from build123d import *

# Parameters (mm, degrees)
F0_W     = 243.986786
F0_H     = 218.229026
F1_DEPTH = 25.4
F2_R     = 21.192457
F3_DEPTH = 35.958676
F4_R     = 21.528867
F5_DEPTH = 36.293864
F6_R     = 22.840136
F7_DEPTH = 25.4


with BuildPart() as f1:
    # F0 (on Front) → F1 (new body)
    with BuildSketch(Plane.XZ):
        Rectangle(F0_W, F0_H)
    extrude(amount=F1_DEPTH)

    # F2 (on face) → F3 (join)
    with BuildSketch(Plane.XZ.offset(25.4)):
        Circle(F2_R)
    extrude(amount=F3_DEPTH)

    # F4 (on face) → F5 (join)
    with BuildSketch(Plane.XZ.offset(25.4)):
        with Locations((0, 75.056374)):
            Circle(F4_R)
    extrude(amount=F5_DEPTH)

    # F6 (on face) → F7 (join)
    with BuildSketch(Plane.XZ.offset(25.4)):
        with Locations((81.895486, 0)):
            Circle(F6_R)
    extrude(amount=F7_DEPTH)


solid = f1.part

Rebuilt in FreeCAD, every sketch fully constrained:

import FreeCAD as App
import Part
import Sketcher
Q = App.Units.Quantity

doc = App.newDocument("Part")
body = doc.addObject("PartDesign::Body", "Body")

# Sketch on XZ plane
sketch1 = doc.addObject("Sketcher::SketchObject", "Sketch")
body.addObject(sketch1)
sketch1.AttachmentSupport = (doc.XZ_Plane, [""])
sketch1.MapMode = "FlatFace"
sketch1.addGeometry(Part.LineSegment(App.Vector(-122, 109, 0), App.Vector(-122, -109, 0)), False)
sketch1.addGeometry(Part.LineSegment(App.Vector(-122, -109, 0), App.Vector(122, -109, 0)), False)
sketch1.addGeometry(Part.LineSegment(App.Vector(122, -109, 0), App.Vector(122, 109, 0)), False)
sketch1.addGeometry(Part.LineSegment(App.Vector(122, 109, 0), App.Vector(-122, 109, 0)), False)
sketch1.addConstraint(Sketcher.Constraint("Coincident", 0, 2, 1, 1))
sketch1.addConstraint(Sketcher.Constraint("Coincident", 1, 2, 2, 1))
sketch1.addConstraint(Sketcher.Constraint("Coincident", 2, 2, 3, 1))
sketch1.addConstraint(Sketcher.Constraint("Coincident", 3, 2, 0, 1))
sketch1.addConstraint(Sketcher.Constraint("Vertical", 0))
sketch1.addConstraint(Sketcher.Constraint("Horizontal", 1))
sketch1.addConstraint(Sketcher.Constraint("Vertical", 2))
sketch1.addConstraint(Sketcher.Constraint("Horizontal", 3))
sketch1.addConstraint(Sketcher.Constraint("Symmetric", 0, 2, 2, 2, -1, 1))
sketch1.addConstraint(Sketcher.Constraint("DistanceX", 1, 1, 1, 2, 243.986786))
sketch1.addConstraint(Sketcher.Constraint("DistanceY", 0, 2, 0, 1, 218.229026))
pad1 = doc.addObject("PartDesign::Pad", "Pad")
body.addObject(pad1)
pad1.Profile = sketch1
pad1.Length = Q("1 in")

# Sketch on XZ plane
sketch2 = doc.addObject("Sketcher::SketchObject", "Sketch001")
body.addObject(sketch2)
sketch2.AttachmentSupport = (doc.XZ_Plane, [""])
sketch2.MapMode = "FlatFace"
sketch2.AttachmentOffset = App.Placement(App.Vector(0, 0, 1 * 25.4), App.Rotation())
sketch2.addGeometry(Part.Circle(App.Vector(0, 0, 0), App.Vector(0, 0, 1), 21), False)
sketch2.addConstraint(Sketcher.Constraint("Coincident", 0, 3, -1, 1))
sketch2.addConstraint(Sketcher.Constraint("Diameter", 0, 42.384914))
pad2 = doc.addObject("PartDesign::Pad", "Pad001")
body.addObject(pad2)
pad2.Profile = sketch2
pad2.Length = 35.958676

# Sketch on XZ plane
sketch3 = doc.addObject("Sketcher::SketchObject", "Sketch002")
body.addObject(sketch3)
sketch3.AttachmentSupport = (doc.XZ_Plane, [""])
sketch3.MapMode = "FlatFace"
sketch3.AttachmentOffset = App.Placement(App.Vector(0, 0, 1 * 25.4), App.Rotation())
sketch3.addGeometry(Part.Circle(App.Vector(0, 75, 0), App.Vector(0, 0, 1), 22), False)
sketch3.addConstraint(Sketcher.Constraint("PointOnObject", 0, 3, -2))
sketch3.addConstraint(Sketcher.Constraint("Diameter", 0, 43.057734))
sketch3.addConstraint(Sketcher.Constraint("DistanceY", -1, 1, 0, 3, 75.056374))
pad3 = doc.addObject("PartDesign::Pad", "Pad002")
body.addObject(pad3)
pad3.Profile = sketch3
pad3.Length = 36.293864

# Sketch on XZ plane
sketch4 = doc.addObject("Sketcher::SketchObject", "Sketch003")
body.addObject(sketch4)
sketch4.AttachmentSupport = (doc.XZ_Plane, [""])
sketch4.MapMode = "FlatFace"
sketch4.AttachmentOffset = App.Placement(App.Vector(0, 0, 1 * 25.4), App.Rotation())
sketch4.addGeometry(Part.Circle(App.Vector(82, 0, 0), App.Vector(0, 0, 1), 23), False)
sketch4.addConstraint(Sketcher.Constraint("PointOnObject", 0, 3, -1))
sketch4.addConstraint(Sketcher.Constraint("Diameter", 0, 45.680272))
sketch4.addConstraint(Sketcher.Constraint("DistanceX", -1, 1, 0, 3, 81.895486))
pad4 = doc.addObject("PartDesign::Pad", "Pad003")
body.addObject(pad4)
pad4.Profile = sketch4
pad4.Length = Q("1 in")

doc.recompute()
